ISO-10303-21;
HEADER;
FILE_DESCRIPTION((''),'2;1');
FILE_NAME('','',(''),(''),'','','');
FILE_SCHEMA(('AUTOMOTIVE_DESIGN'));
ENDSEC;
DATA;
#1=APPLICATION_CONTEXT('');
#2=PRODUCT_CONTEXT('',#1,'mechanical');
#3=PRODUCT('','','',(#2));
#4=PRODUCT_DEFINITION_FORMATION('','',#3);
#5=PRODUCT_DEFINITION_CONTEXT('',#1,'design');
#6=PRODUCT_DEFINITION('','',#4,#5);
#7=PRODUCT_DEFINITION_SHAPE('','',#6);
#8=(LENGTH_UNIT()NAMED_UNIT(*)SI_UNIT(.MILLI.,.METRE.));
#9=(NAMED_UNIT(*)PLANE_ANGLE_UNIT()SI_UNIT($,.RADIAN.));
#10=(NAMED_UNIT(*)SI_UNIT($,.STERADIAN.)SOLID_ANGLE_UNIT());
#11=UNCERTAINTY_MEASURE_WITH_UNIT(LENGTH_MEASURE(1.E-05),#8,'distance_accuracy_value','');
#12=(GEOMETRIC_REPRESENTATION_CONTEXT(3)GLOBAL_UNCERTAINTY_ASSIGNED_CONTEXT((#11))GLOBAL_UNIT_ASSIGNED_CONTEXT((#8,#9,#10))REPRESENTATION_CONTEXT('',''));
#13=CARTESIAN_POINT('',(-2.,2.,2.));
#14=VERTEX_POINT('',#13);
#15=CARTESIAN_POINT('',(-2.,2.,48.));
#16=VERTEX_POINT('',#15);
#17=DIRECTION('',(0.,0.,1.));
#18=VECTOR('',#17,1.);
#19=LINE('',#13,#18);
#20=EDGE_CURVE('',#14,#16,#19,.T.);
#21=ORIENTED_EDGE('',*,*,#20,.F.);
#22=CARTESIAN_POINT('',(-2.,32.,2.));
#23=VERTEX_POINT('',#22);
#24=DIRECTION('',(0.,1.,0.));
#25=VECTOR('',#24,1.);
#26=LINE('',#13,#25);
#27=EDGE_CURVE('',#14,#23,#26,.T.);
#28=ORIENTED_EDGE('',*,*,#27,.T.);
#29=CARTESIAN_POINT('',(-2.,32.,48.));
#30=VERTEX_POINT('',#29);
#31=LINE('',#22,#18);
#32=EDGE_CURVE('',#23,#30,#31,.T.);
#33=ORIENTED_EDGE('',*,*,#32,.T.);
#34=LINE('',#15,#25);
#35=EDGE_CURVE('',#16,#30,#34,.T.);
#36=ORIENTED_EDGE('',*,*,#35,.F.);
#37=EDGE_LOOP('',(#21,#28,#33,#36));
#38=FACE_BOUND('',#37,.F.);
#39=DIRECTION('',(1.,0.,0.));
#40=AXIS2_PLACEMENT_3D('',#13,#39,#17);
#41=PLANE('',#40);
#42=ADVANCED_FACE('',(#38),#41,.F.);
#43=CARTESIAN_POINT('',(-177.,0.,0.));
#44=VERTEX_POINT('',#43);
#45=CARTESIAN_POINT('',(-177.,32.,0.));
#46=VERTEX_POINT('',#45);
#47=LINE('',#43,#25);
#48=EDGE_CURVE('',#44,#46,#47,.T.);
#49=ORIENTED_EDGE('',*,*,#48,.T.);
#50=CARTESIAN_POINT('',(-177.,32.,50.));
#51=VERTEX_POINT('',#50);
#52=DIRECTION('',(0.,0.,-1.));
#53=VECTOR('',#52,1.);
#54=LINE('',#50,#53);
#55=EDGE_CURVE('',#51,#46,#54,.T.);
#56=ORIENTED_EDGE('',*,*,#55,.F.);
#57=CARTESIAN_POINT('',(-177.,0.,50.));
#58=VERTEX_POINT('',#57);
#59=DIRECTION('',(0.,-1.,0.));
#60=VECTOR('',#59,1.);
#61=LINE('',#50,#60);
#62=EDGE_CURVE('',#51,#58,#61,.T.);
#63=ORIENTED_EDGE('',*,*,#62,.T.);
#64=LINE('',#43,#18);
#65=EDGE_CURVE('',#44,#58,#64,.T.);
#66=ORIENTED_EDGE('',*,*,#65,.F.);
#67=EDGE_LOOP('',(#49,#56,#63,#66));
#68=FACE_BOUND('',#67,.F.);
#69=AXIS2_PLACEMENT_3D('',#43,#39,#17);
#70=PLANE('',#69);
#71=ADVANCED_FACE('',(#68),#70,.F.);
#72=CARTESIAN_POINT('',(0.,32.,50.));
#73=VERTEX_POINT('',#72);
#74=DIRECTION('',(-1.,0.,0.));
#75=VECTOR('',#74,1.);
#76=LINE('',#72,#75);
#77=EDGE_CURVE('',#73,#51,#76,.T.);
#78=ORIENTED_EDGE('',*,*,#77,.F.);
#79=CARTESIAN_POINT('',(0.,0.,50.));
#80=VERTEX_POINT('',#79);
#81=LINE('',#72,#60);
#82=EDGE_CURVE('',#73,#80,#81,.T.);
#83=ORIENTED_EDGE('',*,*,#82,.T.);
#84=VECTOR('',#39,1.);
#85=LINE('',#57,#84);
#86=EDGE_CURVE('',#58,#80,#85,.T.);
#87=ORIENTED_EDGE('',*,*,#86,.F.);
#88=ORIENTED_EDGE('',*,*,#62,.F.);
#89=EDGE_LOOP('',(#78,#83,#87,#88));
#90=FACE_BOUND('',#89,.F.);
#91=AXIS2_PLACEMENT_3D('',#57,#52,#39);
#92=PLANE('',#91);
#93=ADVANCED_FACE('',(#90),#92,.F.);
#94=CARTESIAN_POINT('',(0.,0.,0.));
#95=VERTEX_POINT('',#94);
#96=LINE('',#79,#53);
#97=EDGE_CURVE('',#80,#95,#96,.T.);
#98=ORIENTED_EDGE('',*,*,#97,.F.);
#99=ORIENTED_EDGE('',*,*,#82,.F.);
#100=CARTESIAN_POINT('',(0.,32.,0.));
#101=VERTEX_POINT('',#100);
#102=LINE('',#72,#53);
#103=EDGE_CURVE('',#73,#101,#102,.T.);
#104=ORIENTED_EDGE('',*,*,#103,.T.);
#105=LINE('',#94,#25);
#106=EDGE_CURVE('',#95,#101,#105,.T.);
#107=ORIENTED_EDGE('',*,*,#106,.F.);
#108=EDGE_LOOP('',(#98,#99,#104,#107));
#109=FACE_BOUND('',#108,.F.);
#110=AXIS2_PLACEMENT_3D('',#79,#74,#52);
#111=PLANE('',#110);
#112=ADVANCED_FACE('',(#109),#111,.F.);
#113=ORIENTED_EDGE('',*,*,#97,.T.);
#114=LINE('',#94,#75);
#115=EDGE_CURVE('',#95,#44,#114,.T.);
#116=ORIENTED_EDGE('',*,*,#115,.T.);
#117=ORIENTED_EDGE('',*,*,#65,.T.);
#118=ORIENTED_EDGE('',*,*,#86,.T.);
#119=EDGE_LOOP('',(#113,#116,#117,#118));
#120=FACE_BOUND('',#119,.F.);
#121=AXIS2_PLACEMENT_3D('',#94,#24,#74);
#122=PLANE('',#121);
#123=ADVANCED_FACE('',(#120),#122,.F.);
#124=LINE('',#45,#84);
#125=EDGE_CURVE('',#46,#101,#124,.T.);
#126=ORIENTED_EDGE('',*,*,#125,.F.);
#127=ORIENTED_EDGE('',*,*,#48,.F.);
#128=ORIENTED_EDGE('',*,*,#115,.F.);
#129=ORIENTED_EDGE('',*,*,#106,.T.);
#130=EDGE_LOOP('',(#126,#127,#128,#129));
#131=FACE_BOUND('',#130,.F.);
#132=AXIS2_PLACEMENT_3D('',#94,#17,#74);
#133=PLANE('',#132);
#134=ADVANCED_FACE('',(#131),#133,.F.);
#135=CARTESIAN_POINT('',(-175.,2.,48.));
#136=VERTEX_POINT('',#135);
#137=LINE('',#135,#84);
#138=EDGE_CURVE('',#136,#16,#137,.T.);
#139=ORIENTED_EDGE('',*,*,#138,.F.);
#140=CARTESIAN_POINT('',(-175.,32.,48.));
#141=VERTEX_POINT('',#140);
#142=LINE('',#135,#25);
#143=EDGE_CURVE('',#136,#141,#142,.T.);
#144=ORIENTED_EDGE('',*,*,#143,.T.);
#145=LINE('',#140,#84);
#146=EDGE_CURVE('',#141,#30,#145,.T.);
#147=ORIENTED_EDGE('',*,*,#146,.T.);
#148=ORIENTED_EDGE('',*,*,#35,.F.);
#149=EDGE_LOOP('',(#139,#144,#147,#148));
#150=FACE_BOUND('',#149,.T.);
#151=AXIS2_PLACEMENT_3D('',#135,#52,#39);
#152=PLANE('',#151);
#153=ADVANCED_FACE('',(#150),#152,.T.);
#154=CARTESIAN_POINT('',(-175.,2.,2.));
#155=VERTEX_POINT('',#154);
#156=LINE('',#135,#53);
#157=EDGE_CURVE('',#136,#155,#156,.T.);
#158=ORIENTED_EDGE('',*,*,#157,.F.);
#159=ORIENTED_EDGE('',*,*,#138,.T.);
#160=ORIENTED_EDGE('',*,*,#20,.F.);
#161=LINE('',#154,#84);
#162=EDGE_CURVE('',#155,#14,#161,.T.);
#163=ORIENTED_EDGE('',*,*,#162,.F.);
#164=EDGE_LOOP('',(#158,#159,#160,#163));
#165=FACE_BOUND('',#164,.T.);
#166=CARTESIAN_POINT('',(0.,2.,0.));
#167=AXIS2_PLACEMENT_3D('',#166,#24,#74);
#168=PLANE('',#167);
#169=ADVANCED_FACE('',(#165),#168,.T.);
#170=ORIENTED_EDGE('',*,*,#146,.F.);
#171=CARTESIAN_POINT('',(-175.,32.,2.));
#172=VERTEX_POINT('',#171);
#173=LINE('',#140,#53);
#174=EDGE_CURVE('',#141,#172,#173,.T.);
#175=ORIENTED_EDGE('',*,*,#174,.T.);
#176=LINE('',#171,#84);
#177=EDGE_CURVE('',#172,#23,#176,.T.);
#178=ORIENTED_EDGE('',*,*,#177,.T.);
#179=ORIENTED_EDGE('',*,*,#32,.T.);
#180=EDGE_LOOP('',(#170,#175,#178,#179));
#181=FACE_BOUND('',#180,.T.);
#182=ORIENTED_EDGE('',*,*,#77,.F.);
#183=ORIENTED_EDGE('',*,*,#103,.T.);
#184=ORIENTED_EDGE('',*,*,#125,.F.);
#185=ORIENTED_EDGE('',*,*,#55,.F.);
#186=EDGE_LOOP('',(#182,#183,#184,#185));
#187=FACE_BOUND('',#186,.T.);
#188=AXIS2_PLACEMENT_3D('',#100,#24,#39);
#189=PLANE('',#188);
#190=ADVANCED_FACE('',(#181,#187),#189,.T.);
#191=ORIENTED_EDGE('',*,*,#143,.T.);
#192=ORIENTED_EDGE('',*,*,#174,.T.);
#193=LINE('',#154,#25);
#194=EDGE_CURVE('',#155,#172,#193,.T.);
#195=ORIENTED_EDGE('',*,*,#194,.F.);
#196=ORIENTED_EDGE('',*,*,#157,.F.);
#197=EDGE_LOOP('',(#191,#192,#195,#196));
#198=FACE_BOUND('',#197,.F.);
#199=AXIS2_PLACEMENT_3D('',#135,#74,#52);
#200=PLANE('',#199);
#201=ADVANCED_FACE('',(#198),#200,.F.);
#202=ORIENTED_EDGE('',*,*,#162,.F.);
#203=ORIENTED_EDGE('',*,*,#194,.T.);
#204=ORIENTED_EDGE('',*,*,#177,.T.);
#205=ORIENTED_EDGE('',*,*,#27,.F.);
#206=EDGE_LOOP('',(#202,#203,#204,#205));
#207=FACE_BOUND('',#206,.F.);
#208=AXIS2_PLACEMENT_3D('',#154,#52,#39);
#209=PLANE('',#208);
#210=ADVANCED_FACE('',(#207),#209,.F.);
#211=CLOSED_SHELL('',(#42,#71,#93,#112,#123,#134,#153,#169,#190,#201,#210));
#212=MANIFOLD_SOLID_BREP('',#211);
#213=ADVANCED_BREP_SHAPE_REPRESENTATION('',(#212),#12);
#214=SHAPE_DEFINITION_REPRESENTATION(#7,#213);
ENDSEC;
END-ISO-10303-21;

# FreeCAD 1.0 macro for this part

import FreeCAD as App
import Part
import Sketcher


def add_polygon(sketch, points):
    """Adds a closed chain of lines whose ends are joined by coincident constraints."""
    first, n = sketch.GeometryCount, len(points)
    for a, b in zip(points, points[1:] + points[:1]):
        sketch.addGeometry(Part.LineSegment(App.Vector(*a, 0), App.Vector(*b, 0)), False)
    for i in range(n):
        sketch.addConstraint(Sketcher.Constraint("Coincident", first + i, 2, first + (i + 1) % n, 1))

doc = App.newDocument("Part")
body = doc.addObject("PartDesign::Body", "Body")

sketch1 = body.newObject("Sketcher::SketchObject", "Sketch")
sketch1.AttachmentSupport = (doc.getObject("XZ_Plane"), [""])
sketch1.MapMode = "FlatFace"
add_polygon(sketch1, [(0, 50), (0, 0), (-177, 0), (-177, 50)])
sketch1.addConstraint(Sketcher.Constraint("Vertical", 0))
sketch1.addConstraint(Sketcher.Constraint("Horizontal", 1))
sketch1.addConstraint(Sketcher.Constraint("Vertical", 2))
sketch1.addConstraint(Sketcher.Constraint("Horizontal", 3))
sketch1.addConstraint(Sketcher.Constraint("Coincident", 0, 2, -1, 1))
sketch1.addConstraint(Sketcher.Constraint("DistanceX", 1, 2, 1, 1, 177.0))
sketch1.addConstraint(Sketcher.Constraint("DistanceY", 0, 2, 0, 1, 50.0))
pad1 = body.newObject("PartDesign::Pad", "Pad")
pad1.Profile = sketch1
pad1.Length = 2
pad1.Reversed = True

sketch2 = body.newObject("Sketcher::SketchObject", "Sketch001")
sketch2.AttachmentSupport = (doc.getObject("XZ_Plane"), [""])
sketch2.MapMode = "FlatFace"
sketch2.AttachmentOffset = App.Placement(App.Vector(0, 0, -2), App.Rotation())
add_polygon(sketch2, [(0, 50), (0, 0), (-177, 0), (-177, 50)])
add_polygon(sketch2, [(-175, 48), (-175, 2), (-2, 2), (-2, 48)])
sketch2.addConstraint(Sketcher.Constraint("Vertical", 0))
sketch2.addConstraint(Sketcher.Constraint("Horizontal", 1))
sketch2.addConstraint(Sketcher.Constraint("Vertical", 2))
sketch2.addConstraint(Sketcher.Constraint("Horizontal", 3))
sketch2.addConstraint(Sketcher.Constraint("Vertical", 4))
sketch2.addConstraint(Sketcher.Constraint("Horizontal", 5))
sketch2.addConstraint(Sketcher.Constraint("Vertical", 6))
sketch2.addConstraint(Sketcher.Constraint("Horizontal", 7))
sketch2.addConstraint(Sketcher.Constraint("Coincident", 0, 2, -1, 1))
sketch2.addConstraint(Sketcher.Constraint("DistanceY", -1, 1, 4, 2, 2.0))
sketch2.addConstraint(Sketcher.Constraint("DistanceX", 5, 2, -1, 1, 2.0))
sketch2.addConstraint(Sketcher.Constraint("DistanceX", 1, 2, 4, 2, 2.0))
sketch2.addConstraint(Sketcher.Constraint("DistanceY", 6, 2, 3, 2, 2.0))
sketch2.addConstraint(Sketcher.Constraint("DistanceX", 1, 2, 1, 1, 177.0))
sketch2.addConstraint(Sketcher.Constraint("DistanceY", 0, 2, 0, 1, 50.0))
pad2 = body.newObject("PartDesign::Pad", "Pad001")
pad2.Profile = sketch2
pad2.Length = 30
pad2.Reversed = True

doc.recompute()
